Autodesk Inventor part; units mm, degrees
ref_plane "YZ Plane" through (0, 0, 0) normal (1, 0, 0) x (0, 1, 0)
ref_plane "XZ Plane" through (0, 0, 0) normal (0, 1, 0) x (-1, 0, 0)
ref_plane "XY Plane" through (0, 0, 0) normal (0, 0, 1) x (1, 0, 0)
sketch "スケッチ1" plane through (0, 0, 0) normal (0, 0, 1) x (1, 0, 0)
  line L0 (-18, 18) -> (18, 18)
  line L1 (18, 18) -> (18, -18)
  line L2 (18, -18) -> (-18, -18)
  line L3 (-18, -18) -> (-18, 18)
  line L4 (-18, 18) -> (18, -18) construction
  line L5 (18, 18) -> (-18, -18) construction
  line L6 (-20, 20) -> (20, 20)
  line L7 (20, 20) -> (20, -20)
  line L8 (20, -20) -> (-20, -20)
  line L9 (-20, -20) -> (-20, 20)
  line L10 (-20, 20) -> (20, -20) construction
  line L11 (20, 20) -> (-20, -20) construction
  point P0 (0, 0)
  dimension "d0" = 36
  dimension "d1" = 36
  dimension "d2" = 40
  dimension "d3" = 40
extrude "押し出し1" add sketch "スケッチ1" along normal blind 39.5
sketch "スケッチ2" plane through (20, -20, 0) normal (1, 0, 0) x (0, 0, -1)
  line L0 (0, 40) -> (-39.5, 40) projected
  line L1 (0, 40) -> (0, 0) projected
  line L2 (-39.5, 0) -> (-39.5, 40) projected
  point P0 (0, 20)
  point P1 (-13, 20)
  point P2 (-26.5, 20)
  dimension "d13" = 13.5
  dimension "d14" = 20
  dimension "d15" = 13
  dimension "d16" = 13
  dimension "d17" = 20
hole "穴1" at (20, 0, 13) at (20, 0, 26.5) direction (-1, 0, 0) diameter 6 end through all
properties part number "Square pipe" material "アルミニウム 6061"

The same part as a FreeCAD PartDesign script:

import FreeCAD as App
import Part
import Sketcher
from FreeCAD import Vector

doc = App.newDocument("Part")
params = doc.addObject("Spreadsheet::Sheet", "Params")
for row, (alias, value) in enumerate([
    ("sketch1_width", "40 mm"),
    ("sketch1_width2", "36 mm"),
    ("pad1_length", "39.5 mm"),
    ("sketch2_diameter", "6 mm"),
    ("hole_diameter", "6 mm"),
], start=1):
    params.set(f"A{row}", alias)
    params.set(f"B{row}", "=" + value)
    params.setAlias(f"B{row}", alias)

body = doc.addObject("PartDesign::Body", "Body")

# Sketch on XY plane
sketch1 = body.newObject("Sketcher::SketchObject", "Sketch")
sketch1.AttachmentSupport = (doc.getObject("XY_Plane"), [""])
sketch1.MapMode = "FlatFace"
sketch1.addGeometry(Part.LineSegment(Vector(20, 20, 0), Vector(-20, 20, 0)), False)
sketch1.addGeometry(Part.LineSegment(Vector(-20, 20, 0), Vector(-20, -20, 0)), False)
sketch1.addGeometry(Part.LineSegment(Vector(-20, -20, 0), Vector(20, -20, 0)), False)
sketch1.addGeometry(Part.LineSegment(Vector(20, -20, 0), Vector(20, 20, 0)), False)
sketch1.addGeometry(Part.LineSegment(Vector(-18, -18, 0), Vector(-18, 18, 0)), False)
sketch1.addGeometry(Part.LineSegment(Vector(-18, 18, 0), Vector(18, 18, 0)), False)
sketch1.addGeometry(Part.LineSegment(Vector(18, 18, 0), Vector(18, -18, 0)), False)
sketch1.addGeometry(Part.LineSegment(Vector(18, -18, 0), Vector(-18, -18, 0)), False)
sketch1.addConstraint(Sketcher.Constraint("Coincident", 0, 2, 1, 1))
sketch1.addConstraint(Sketcher.Constraint("Coincident", 1, 2, 2, 1))
sketch1.addConstraint(Sketcher.Constraint("Coincident", 2, 2, 3, 1))
sketch1.addConstraint(Sketcher.Constraint("Coincident", 3, 2, 0, 1))
sketch1.addConstraint(Sketcher.Constraint("Coincident", 4, 2, 5, 1))
sketch1.addConstraint(Sketcher.Constraint("Coincident", 5, 2, 6, 1))
sketch1.addConstraint(Sketcher.Constraint("Coincident", 6, 2, 7, 1))
sketch1.addConstraint(Sketcher.Constraint("Coincident", 7, 2, 4, 1))
sketch1.addConstraint(Sketcher.Constraint("Horizontal", 0))
sketch1.addConstraint(Sketcher.Constraint("Vertical", 1))
sketch1.addConstraint(Sketcher.Constraint("Horizontal", 2))
sketch1.addConstraint(Sketcher.Constraint("Vertical", 3))
sketch1.addConstraint(Sketcher.Constraint("Vertical", 4))
sketch1.addConstraint(Sketcher.Constraint("Horizontal", 5))
sketch1.addConstraint(Sketcher.Constraint("Vertical", 6))
sketch1.addConstraint(Sketcher.Constraint("Horizontal", 7))
sketch1.addConstraint(Sketcher.Constraint("Symmetric", 0, 2, 2, 2, -1, 1))
sketch1.addConstraint(Sketcher.Constraint("Symmetric", 4, 2, 6, 2, -1, 1))
sketch1.addConstraint(Sketcher.Constraint("Equal", 2, 1))
sketch1.addConstraint(Sketcher.Constraint("Equal", 7, 4))
sketch1.addConstraint(Sketcher.Constraint("DistanceX", 0, 2, 0, 1, 40.0))
sketch1.addConstraint(Sketcher.Constraint("DistanceX", 5, 1, 5, 2, 36.0))
sketch1.setExpression("Constraints[20]", "Params.sketch1_width")
sketch1.setExpression("Constraints[21]", "Params.sketch1_width2")
pad1 = body.newObject("PartDesign::Pad", "Pad")
pad1.Profile = sketch1
pad1.setExpression("Length", "Params.pad1_length")

# Sketch on YZ plane
sketch2 = body.newObject("Sketcher::SketchObject", "Sketch001")
sketch2.AttachmentSupport = (doc.getObject("YZ_Plane"), [""])
sketch2.MapMode = "FlatFace"
sketch2.AttachmentOffset = App.Placement(Vector(0, 0, 20), App.Rotation())
sketch2.addGeometry(Part.Circle(Vector(0, 13, 0), Vector(0, 0, 1), 3), False)
sketch2.addGeometry(Part.Circle(Vector(0, 26.5, 0), Vector(0, 0, 1), 3), False)
sketch2.addConstraint(Sketcher.Constraint("Equal", 0, 1))
sketch2.addConstraint(Sketcher.Constraint("PointOnObject", 0, 3, -2))
sketch2.addConstraint(Sketcher.Constraint("PointOnObject", 1, 3, -2))
sketch2.addConstraint(Sketcher.Constraint("Diameter", 0, 6.0))
sketch2.addConstraint(Sketcher.Constraint("DistanceY", -1, 1, 0, 3, 13.0))
sketch2.addConstraint(Sketcher.Constraint("DistanceY", -1, 1, 1, 3, 26.5))
sketch2.setExpression("Constraints[3]", "Params.sketch2_diameter")
doc.recompute()
hole = body.newObject("PartDesign::Hole", "Hole")
hole.Profile = sketch2
hole.ThreadType = "None"
hole.setExpression("Diameter", "Params.hole_diameter")
hole.DepthType = "ThroughAll"

doc.recompute()
